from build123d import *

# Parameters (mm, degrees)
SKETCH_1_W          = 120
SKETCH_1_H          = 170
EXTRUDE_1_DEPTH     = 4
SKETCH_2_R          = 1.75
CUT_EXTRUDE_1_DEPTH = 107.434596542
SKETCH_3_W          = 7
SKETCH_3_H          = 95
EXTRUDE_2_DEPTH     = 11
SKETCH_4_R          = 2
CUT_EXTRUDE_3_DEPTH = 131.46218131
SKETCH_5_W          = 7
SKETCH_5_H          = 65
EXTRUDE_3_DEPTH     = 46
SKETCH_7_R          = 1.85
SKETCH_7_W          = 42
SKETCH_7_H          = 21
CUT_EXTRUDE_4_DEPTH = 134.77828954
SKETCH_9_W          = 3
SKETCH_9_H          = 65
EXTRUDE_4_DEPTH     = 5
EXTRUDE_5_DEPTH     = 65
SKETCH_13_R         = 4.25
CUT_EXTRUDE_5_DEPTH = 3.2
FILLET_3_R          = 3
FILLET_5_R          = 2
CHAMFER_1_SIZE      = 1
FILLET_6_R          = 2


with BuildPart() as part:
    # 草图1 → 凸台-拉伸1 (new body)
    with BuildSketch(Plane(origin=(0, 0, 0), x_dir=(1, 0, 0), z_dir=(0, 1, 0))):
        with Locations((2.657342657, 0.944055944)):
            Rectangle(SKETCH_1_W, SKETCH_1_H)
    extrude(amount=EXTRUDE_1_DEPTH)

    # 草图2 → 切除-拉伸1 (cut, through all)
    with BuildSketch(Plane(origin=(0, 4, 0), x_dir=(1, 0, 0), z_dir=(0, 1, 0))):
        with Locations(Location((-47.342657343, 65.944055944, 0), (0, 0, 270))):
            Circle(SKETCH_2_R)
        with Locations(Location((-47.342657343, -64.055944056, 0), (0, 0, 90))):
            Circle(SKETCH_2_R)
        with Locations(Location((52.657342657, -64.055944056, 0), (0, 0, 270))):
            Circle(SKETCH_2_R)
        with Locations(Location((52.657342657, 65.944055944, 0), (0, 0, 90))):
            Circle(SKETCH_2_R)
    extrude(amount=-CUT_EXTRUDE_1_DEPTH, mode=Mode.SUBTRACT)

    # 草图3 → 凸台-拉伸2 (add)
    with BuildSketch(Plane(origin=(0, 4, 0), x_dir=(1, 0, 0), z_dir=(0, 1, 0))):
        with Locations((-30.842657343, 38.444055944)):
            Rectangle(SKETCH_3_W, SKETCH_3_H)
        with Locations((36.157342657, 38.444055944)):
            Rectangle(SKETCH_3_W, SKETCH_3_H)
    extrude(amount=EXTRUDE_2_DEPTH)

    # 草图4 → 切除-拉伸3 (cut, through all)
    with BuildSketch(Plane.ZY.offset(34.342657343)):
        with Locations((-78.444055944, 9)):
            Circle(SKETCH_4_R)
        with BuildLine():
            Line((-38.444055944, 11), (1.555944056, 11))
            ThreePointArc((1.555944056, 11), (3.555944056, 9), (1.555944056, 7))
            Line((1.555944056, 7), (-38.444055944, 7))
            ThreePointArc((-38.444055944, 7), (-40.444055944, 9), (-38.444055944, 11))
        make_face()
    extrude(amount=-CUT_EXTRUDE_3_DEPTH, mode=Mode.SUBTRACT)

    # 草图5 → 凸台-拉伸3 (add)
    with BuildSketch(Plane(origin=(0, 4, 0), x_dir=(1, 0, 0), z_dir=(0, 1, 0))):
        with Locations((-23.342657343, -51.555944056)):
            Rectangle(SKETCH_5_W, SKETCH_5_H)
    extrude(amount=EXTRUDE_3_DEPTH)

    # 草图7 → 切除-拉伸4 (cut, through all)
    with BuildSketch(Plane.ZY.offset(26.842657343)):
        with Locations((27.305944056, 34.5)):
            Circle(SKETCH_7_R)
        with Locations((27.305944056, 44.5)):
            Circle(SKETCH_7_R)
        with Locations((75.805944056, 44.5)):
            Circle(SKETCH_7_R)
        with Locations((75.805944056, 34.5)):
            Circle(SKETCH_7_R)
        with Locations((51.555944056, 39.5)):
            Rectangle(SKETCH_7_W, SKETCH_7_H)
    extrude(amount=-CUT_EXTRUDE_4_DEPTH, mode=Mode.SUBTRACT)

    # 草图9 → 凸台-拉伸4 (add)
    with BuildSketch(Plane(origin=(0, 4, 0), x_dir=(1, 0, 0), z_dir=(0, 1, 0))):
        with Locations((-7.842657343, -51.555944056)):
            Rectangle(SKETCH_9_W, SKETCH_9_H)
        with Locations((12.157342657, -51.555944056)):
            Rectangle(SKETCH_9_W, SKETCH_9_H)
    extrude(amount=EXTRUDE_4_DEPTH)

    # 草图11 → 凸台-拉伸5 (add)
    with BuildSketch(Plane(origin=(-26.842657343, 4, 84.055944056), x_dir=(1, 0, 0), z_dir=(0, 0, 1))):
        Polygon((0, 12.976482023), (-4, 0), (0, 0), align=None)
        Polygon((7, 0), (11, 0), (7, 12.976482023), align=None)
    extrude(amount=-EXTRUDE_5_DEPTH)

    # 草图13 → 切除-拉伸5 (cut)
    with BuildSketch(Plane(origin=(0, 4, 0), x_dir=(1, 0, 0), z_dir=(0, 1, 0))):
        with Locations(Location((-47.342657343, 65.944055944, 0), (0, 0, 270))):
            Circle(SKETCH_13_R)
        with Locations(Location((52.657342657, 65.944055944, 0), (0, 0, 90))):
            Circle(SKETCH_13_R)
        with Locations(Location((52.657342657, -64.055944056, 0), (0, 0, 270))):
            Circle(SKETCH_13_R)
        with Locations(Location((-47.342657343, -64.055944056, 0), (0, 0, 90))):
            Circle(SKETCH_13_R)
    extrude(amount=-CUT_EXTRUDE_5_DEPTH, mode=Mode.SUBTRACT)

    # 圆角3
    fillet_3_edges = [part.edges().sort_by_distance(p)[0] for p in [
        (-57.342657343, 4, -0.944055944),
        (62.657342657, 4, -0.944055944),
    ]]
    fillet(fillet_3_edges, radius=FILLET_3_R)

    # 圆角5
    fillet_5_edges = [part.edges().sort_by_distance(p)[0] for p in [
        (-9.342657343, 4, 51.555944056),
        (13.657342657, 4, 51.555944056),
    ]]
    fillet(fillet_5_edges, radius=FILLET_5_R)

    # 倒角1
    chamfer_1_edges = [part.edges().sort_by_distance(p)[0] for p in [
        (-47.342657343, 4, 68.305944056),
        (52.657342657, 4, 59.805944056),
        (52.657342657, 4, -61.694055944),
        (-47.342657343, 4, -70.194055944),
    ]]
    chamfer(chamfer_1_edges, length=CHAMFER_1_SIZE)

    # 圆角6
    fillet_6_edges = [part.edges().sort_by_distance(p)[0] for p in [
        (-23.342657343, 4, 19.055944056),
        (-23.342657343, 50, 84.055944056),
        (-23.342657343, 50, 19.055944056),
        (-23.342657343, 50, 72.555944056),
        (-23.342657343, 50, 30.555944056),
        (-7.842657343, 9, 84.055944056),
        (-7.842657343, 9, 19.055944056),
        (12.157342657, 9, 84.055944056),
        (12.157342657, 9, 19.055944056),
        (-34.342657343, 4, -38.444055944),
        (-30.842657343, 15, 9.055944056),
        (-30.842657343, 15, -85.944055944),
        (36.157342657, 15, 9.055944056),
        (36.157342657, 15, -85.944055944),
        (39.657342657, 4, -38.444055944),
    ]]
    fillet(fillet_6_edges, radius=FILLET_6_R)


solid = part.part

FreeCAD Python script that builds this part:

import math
import FreeCAD as App
import Part
import Sketcher

V = App.Vector
Q = App.Units.Quantity


def edges_at(feature, points):
    """Names of the edges that pass closest to the given points."""
    edges = feature.Shape.Edges
    near = lambda p: min(range(len(edges)), key=lambda i: edges[i].distToShape(Part.Vertex(*p))[0])
    return sorted({f"Edge{near(p) + 1}" for p in points})


def add_polygon(sketch, points):
    """Adds a closed chain of lines whose ends are joined by coincident constraints."""
    first, n = sketch.GeometryCount, len(points)
    for a, b in zip(points, points[1:] + points[:1]):
        sketch.addGeometry(Part.LineSegment(App.Vector(*a, 0), App.Vector(*b, 0)), False)
    for i in range(n):
        sketch.addConstraint(Sketcher.Constraint("Coincident", first + i, 2, first + (i + 1) % n, 1))

doc = App.newDocument("Part")
body = doc.addObject("PartDesign::Body", "Body")

sketch1 = body.newObject("Sketcher::SketchObject", "Sketch")
sketch1.AttachmentSupport = (doc.getObject("XZ_Plane"), [""])
sketch1.MapMode = "FlatFace"
add_polygon(sketch1, [(-57, -86), (-57, 84), (63, 84), (63, -86)])
sketch1.addConstraint(Sketcher.Constraint("Vertical", 0))
sketch1.addConstraint(Sketcher.Constraint("Horizontal", 1))
sketch1.addConstraint(Sketcher.Constraint("Vertical", 2))
sketch1.addConstraint(Sketcher.Constraint("Horizontal", 3))
sketch1.addConstraint(Sketcher.Constraint("DistanceX", 1, 1, 1, 2, Q("120 mm")))
sketch1.addConstraint(Sketcher.Constraint("DistanceY", 0, 1, 0, 2, Q("170 mm")))
sketch1.addConstraint(Sketcher.Constraint("DistanceX", 0, 2, -1, 1, Q("57.342657 mm")))
sketch1.addConstraint(Sketcher.Constraint("DistanceY", -1, 1, 0, 2, Q("84.055944 mm")))
pad1 = body.newObject("PartDesign::Pad", "Pad")
pad1.Profile = sketch1
pad1.Length = 4
pad1.Reversed = True

sketch2 = body.newObject("Sketcher::SketchObject", "Sketch001")
sketch2.AttachmentSupport = (doc.getObject("XZ_Plane"), [""])
sketch2.MapMode = "FlatFace"
sketch2.AttachmentOffset = App.Placement(V(0, 0, -4), App.Rotation())
sketch2.addGeometry(Part.Circle(V(-47.3, -65.9, 0), V(0, 0, 1), 1.8), False)
sketch2.addGeometry(Part.Circle(V(-47.3, 64.1, 0), V(0, 0, 1), 1.8), False)
sketch2.addGeometry(Part.Circle(V(52.7, 64.1, 0), V(0, 0, 1), 1.8), False)
sketch2.addGeometry(Part.Circle(V(52.7, -65.9, 0), V(0, 0, 1), 1.8), False)
sketch2.addConstraint(Sketcher.Constraint("Equal", 0, 1))
sketch2.addConstraint(Sketcher.Constraint("Equal", 1, 2))
sketch2.addConstraint(Sketcher.Constraint("Equal", 2, 3))
sketch2.addConstraint(Sketcher.Constraint("Horizontal", 1, 3, 2, 3))
sketch2.addConstraint(Sketcher.Constraint("Horizontal", 0, 3, 3, 3))
sketch2.addConstraint(Sketcher.Constraint("Vertical", 0, 3, 1, 3))
sketch2.addConstraint(Sketcher.Constraint("Vertical", 2, 3, 3, 3))
sketch2.addConstraint(Sketcher.Constraint("Diameter", 0, Q("3.5 mm")))
sketch2.addConstraint(Sketcher.Constraint("DistanceY", 0, 3, 1, 3, Q("130 mm")))
sketch2.addConstraint(Sketcher.Constraint("DistanceX", 1, 3, 2, 3, Q("100 mm")))
sketch2.addConstraint(Sketcher.Constraint("DistanceX", 0, 3, -1, 1, Q("47.342657 mm")))
sketch2.addConstraint(Sketcher.Constraint("DistanceY", 0, 3, -1, 1, Q("65.944056 mm")))
pocket1 = body.newObject("PartDesign::Pocket", "Pocket")
pocket1.Profile = sketch2
pocket1.Type = "ThroughAll"
pocket1.Reversed = True

sketch3 = body.newObject("Sketcher::SketchObject", "Sketch002")
sketch3.AttachmentSupport = (doc.getObject("XZ_Plane"), [""])
sketch3.MapMode = "FlatFace"
sketch3.AttachmentOffset = App.Placement(V(0, 0, -4), App.Rotation())
add_polygon(sketch3, [(-34, -86), (-34, 9), (-27, 9), (-27, -86)])
add_polygon(sketch3, [(33, -86), (33, 9), (40, 9), (40, -86)])
sketch3.addConstraint(Sketcher.Constraint("Vertical", 0))
sketch3.addConstraint(Sketcher.Constraint("Horizontal", 1))
sketch3.addConstraint(Sketcher.Constraint("Vertical", 2))
sketch3.addConstraint(Sketcher.Constraint("Horizontal", 3))
sketch3.addConstraint(Sketcher.Constraint("Vertical", 4))
sketch3.addConstraint(Sketcher.Constraint("Horizontal", 5))
sketch3.addConstraint(Sketcher.Constraint("Vertical", 6))
sketch3.addConstraint(Sketcher.Constraint("Horizontal", 7))
sketch3.addConstraint(Sketcher.Constraint("Horizontal", 1, 2, 4, 2))
sketch3.addConstraint(Sketcher.Constraint("Horizontal", 3, 2, 6, 2))
sketch3.addConstraint(Sketcher.Constraint("Equal", 3, 5))
sketch3.addConstraint(Sketcher.Constraint("DistanceX", 1, 1, 1, 2, Q("7 mm")))
sketch3.addConstraint(Sketcher.Constraint("DistanceY", 0, 1, 0, 2, Q("95 mm")))
sketch3.addConstraint(Sketcher.Constraint("DistanceX", 1, 2, 4, 2, Q("60 mm")))
sketch3.addConstraint(Sketcher.Constraint("DistanceX", 0, 2, -1, 1, Q("34.342657 mm")))
sketch3.addConstraint(Sketcher.Constraint("DistanceY", -1, 1, 0, 2, Q("9.055944 mm")))
pad2 = body.newObject("PartDesign::Pad", "Pad001")
pad2.Profile = sketch3
pad2.Length = 11
pad2.Reversed = True

sketch4 = body.newObject("Sketcher::SketchObject", "Sketch003")
sketch4.AttachmentSupport = (doc.getObject("YZ_Plane"), [""])
sketch4.MapMode = "FlatFace"
sketch4.AttachmentOffset = App.Placement(V(0, 0, -34.342657), App.Rotation())
sketch4.addGeometry(Part.Circle(V(9, -78.4, 0), V(0, 0, 1), 2), False)
sketch4.addGeometry(Part.LineSegment(V(11, 1.6, 0), V(11, -38.4, 0)), False)
sketch4.addGeometry(Part.ArcOfCircle(Part.Circle(V(9, -38.4, 0), V(0, 0, 1), 2), math.radians(180), math.radians(360)), False)
sketch4.addGeometry(Part.LineSegment(V(7, -38.4, 0), V(7, 1.6, 0)), False)
sketch4.addGeometry(Part.ArcOfCircle(Part.Circle(V(9, 1.6, 0), V(0, 0, 1), 2), math.radians(0), math.radians(180)), False)
sketch4.addConstraint(Sketcher.Constraint("Tangent", 1, 2, 2, 2))
sketch4.addConstraint(Sketcher.Constraint("Tangent", 2, 1, 3, 1))
sketch4.addConstraint(Sketcher.Constraint("Tangent", 3, 2, 4, 2))
sketch4.addConstraint(Sketcher.Constraint("Tangent", 4, 1, 1, 1))
sketch4.addConstraint(Sketcher.Constraint("Vertical", 1))
sketch4.addConstraint(Sketcher.Constraint("Vertical", 3))
sketch4.addConstraint(Sketcher.Constraint("Equal", 0, 2))
sketch4.addConstraint(Sketcher.Constraint("Vertical", 0, 3, 2, 3))
sketch4.addConstraint(Sketcher.Constraint("Diameter", 0, Q("4 mm")))
sketch4.addConstraint(Sketcher.Constraint("DistanceY", 1, 2, 1, 1, Q("40 mm")))
sketch4.addConstraint(Sketcher.Constraint("DistanceX", -1, 1, 0, 3, Q("9 mm")))
sketch4.addConstraint(Sketcher.Constraint("DistanceY", 0, 3, 2, 3, Q("40 mm")))
sketch4.addConstraint(Sketcher.Constraint("DistanceY", 0, 3, -1, 1, Q("78.444056 mm")))
pocket2 = body.newObject("PartDesign::Pocket", "Pocket001")
pocket2.Profile = sketch4
pocket2.Type = "ThroughAll"
pocket2.Reversed = True

sketch5 = body.newObject("Sketcher::SketchObject", "Sketch004")
sketch5.AttachmentSupport = (doc.getObject("XZ_Plane"), [""])
sketch5.MapMode = "FlatFace"
sketch5.AttachmentOffset = App.Placement(V(0, 0, -4), App.Rotation())
add_polygon(sketch5, [(-27, 19), (-27, 84), (-20, 84), (-20, 19)])
sketch5.addConstraint(Sketcher.Constraint("Vertical", 0))
sketch5.addConstraint(Sketcher.Constraint("Horizontal", 1))
sketch5.addConstraint(Sketcher.Constraint("Vertical", 2))
sketch5.addConstraint(Sketcher.Constraint("Horizontal", 3))
sketch5.addConstraint(Sketcher.Constraint("DistanceX", 1, 1, 1, 2, Q("7 mm")))
sketch5.addConstraint(Sketcher.Constraint("DistanceY", 0, 1, 0, 2, Q("65 mm")))
sketch5.addConstraint(Sketcher.Constraint("DistanceX", 0, 2, -1, 1, Q("26.842657 mm")))
sketch5.addConstraint(Sketcher.Constraint("DistanceY", -1, 1, 0, 2, Q("84.055944 mm")))
pad3 = body.newObject("PartDesign::Pad", "Pad002")
pad3.Profile = sketch5
pad3.Length = 46
pad3.Reversed = True

sketch6 = body.newObject("Sketcher::SketchObject", "Sketch005")
sketch6.AttachmentSupport = (doc.getObject("YZ_Plane"), [""])
sketch6.MapMode = "FlatFace"
sketch6.AttachmentOffset = App.Placement(V(0, 0, -26.842657), App.Rotation())
sketch6.addGeometry(Part.Circle(V(34.5, 27.3, 0), V(0, 0, 1), 1.9), False)
sketch6.addGeometry(Part.Circle(V(44.5, 27.3, 0), V(0, 0, 1), 1.9), False)
sketch6.addGeometry(Part.Circle(V(44.5, 75.8, 0), V(0, 0, 1), 1.9), False)
sketch6.addGeometry(Part.Circle(V(34.5, 75.8, 0), V(0, 0, 1), 1.9), False)
add_polygon(sketch6, [(50, 30.6), (29, 30.6), (29, 72.6), (50, 72.6)])
sketch6.addConstraint(Sketcher.Constraint("Horizontal", 4))
sketch6.addConstraint(Sketcher.Constraint("Vertical", 5))
sketch6.addConstraint(Sketcher.Constraint("Horizontal", 6))
sketch6.addConstraint(Sketcher.Constraint("Vertical", 7))
sketch6.addConstraint(Sketcher.Constraint("Equal", 0, 1))
sketch6.addConstraint(Sketcher.Constraint("Equal", 1, 2))
sketch6.addConstraint(Sketcher.Constraint("Equal", 2, 3))
sketch6.addConstraint(Sketcher.Constraint("Horizontal", 0, 3, 1, 3))
sketch6.addConstraint(Sketcher.Constraint("Horizontal", 2, 3, 3, 3))
sketch6.addConstraint(Sketcher.Constraint("Vertical", 1, 3, 2, 3))
sketch6.addConstraint(Sketcher.Constraint("Vertical", 0, 3, 3, 3))
sketch6.addConstraint(Sketcher.Constraint("Diameter", 0, Q("3.7 mm")))
sketch6.addConstraint(Sketcher.Constraint("DistanceX", 4, 2, 4, 1, Q("21 mm")))
sketch6.addConstraint(Sketcher.Constraint("DistanceY", 5, 1, 5, 2, Q("42 mm")))
sketch6.addConstraint(Sketcher.Constraint("DistanceX", -1, 1, 4, 2, Q("29 mm")))
sketch6.addConstraint(Sketcher.Constraint("DistanceX", 0, 3, 1, 3, Q("10 mm")))
sketch6.addConstraint(Sketcher.Constraint("DistanceX", -1, 1, 0, 3, Q("34.5 mm")))
sketch6.addConstraint(Sketcher.Constraint("DistanceY", 1, 3, 2, 3, Q("48.5 mm")))
sketch6.addConstraint(Sketcher.Constraint("DistanceY", 0, 3, 4, 2, Q("3.25 mm")))
sketch6.addConstraint(Sketcher.Constraint("DistanceY", -1, 1, 0, 3, Q("27.305944 mm")))
pocket3 = body.newObject("PartDesign::Pocket", "Pocket002")
pocket3.Profile = sketch6
pocket3.Type = "ThroughAll"
pocket3.Reversed = True

sketch7 = body.newObject("Sketcher::SketchObject", "Sketch006")
sketch7.AttachmentSupport = (doc.getObject("XZ_Plane"), [""])
sketch7.MapMode = "FlatFace"
sketch7.AttachmentOffset = App.Placement(V(0, 0, -4), App.Rotation())
add_polygon(sketch7, [(-9.3, 19.1), (-9.3, 84.1), (-6.3, 84.1), (-6.3, 19.1)])
add_polygon(sketch7, [(10.7, 19.1), (10.7, 84.1), (13.7, 84.1), (13.7, 19.1)])
sketch7.addConstraint(Sketcher.Constraint("Vertical", 0))
sketch7.addConstraint(Sketcher.Constraint("Horizontal", 1))
sketch7.addConstraint(Sketcher.Constraint("Vertical", 2))
sketch7.addConstraint(Sketcher.Constraint("Horizontal", 3))
sketch7.addConstraint(Sketcher.Constraint("Vertical", 4))
sketch7.addConstraint(Sketcher.Constraint("Horizontal", 5))
sketch7.addConstraint(Sketcher.Constraint("Vertical", 6))
sketch7.addConstraint(Sketcher.Constraint("Horizontal", 7))
sketch7.addConstraint(Sketcher.Constraint("Horizontal", 1, 2, 4, 2))
sketch7.addConstraint(Sketcher.Constraint("Horizontal", 3, 2, 6, 2))
sketch7.addConstraint(Sketcher.Constraint("Equal", 3, 5))
sketch7.addConstraint(Sketcher.Constraint("DistanceX", 1, 1, 1, 2, Q("3 mm")))
sketch7.addConstraint(Sketcher.Constraint("DistanceY", 0, 1, 0, 2, Q("65 mm")))
sketch7.addConstraint(Sketcher.Constraint("DistanceX", 1, 2, 4, 2, Q("17 mm")))
sketch7.addConstraint(Sketcher.Constraint("DistanceX", 0, 2, -1, 1, Q("9.342657 mm")))
sketch7.addConstraint(Sketcher.Constraint("DistanceY", -1, 1, 0, 2, Q("84.055944 mm")))
pad4 = body.newObject("PartDesign::Pad", "Pad003")
pad4.Profile = sketch7
pad4.Length = 5
pad4.Reversed = True

sketch8 = body.newObject("Sketcher::SketchObject", "Sketch007")
sketch8.AttachmentSupport = (doc.getObject("XY_Plane"), [""])
sketch8.MapMode = "FlatFace"
sketch8.AttachmentOffset = App.Placement(V(0, 0, 84.055944), App.Rotation())
add_polygon(sketch8, [(-26.8, 17), (-30.8, 4), (-26.8, 4)])
add_polygon(sketch8, [(-19.8, 4), (-15.8, 4), (-19.8, 17)])
sketch8.addConstraint(Sketcher.Constraint("Horizontal", 1))
sketch8.addConstraint(Sketcher.Constraint("Vertical", 2))
sketch8.addConstraint(Sketcher.Constraint("Horizontal", 3))
sketch8.addConstraint(Sketcher.Constraint("Vertical", 5))
sketch8.addConstraint(Sketcher.Constraint("Horizontal", 1, 2, 3, 2))
sketch8.addConstraint(Sketcher.Constraint("Horizontal", 2, 2, 4, 2))
sketch8.addConstraint(Sketcher.Constraint("Equal", 1, 3))
sketch8.addConstraint(Sketcher.Constraint("DistanceX", 1, 1, 1, 2, Q("4 mm")))
sketch8.addConstraint(Sketcher.Constraint("DistanceY", -1, 1, 0, 2, Q("4 mm")))
sketch8.addConstraint(Sketcher.Constraint("DistanceX", 1, 2, 3, 2, Q("11 mm")))
sketch8.addConstraint(Sketcher.Constraint("DistanceY", 2, 1, 2, 2, Q("12.976482 mm")))
sketch8.addConstraint(Sketcher.Constraint("DistanceX", 0, 2, -1, 1, Q("30.842657 mm")))
pad5 = body.newObject("PartDesign::Pad", "Pad004")
pad5.Profile = sketch8
pad5.Length = 65
pad5.Reversed = True

sketch9 = body.newObject("Sketcher::SketchObject", "Sketch008")
sketch9.AttachmentSupport = (doc.getObject("XZ_Plane"), [""])
sketch9.MapMode = "FlatFace"
sketch9.AttachmentOffset = App.Placement(V(0, 0, -4), App.Rotation())
sketch9.addGeometry(Part.Circle(V(-47.3, -65.9, 0), V(0, 0, 1), 4.2), False)
sketch9.addGeometry(Part.Circle(V(52.7, -65.9, 0), V(0, 0, 1), 4.2), False)
sketch9.addGeometry(Part.Circle(V(52.7, 64.1, 0), V(0, 0, 1), 4.2), False)
sketch9.addGeometry(Part.Circle(V(-47.3, 64.1, 0), V(0, 0, 1), 4.2), False)
sketch9.addConstraint(Sketcher.Constraint("Equal", 0, 1))
sketch9.addConstraint(Sketcher.Constraint("Equal", 1, 2))
sketch9.addConstraint(Sketcher.Constraint("Equal", 2, 3))
sketch9.addConstraint(Sketcher.Constraint("Horizontal", 0, 3, 1, 3))
sketch9.addConstraint(Sketcher.Constraint("Horizontal", 2, 3, 3, 3))
sketch9.addConstraint(Sketcher.Constraint("Vertical", 1, 3, 2, 3))
sketch9.addConstraint(Sketcher.Constraint("Vertical", 0, 3, 3, 3))
sketch9.addConstraint(Sketcher.Constraint("Diameter", 0, Q("8.5 mm")))
sketch9.addConstraint(Sketcher.Constraint("DistanceX", 0, 3, 1, 3, Q("100 mm")))
sketch9.addConstraint(Sketcher.Constraint("DistanceY", 1, 3, 2, 3, Q("130 mm")))
sketch9.addConstraint(Sketcher.Constraint("DistanceX", 0, 3, -1, 1, Q("47.342657 mm")))
sketch9.addConstraint(Sketcher.Constraint("DistanceY", 0, 3, -1, 1, Q("65.944056 mm")))
pocket4 = body.newObject("PartDesign::Pocket", "Pocket003")
pocket4.Profile = sketch9
pocket4.Length = 3.2
pocket4.Reversed = True
doc.recompute()

fillet = body.newObject("PartDesign::Fillet", "Fillet")
fillet.Base = (pocket4, edges_at(pocket4, [(-57.343, 4, -0.944), (62.657, 4, -0.944)]))
fillet.Radius = 3
doc.recompute()

fillet2 = body.newObject("PartDesign::Fillet", "Fillet001")
fillet2.Base = (fillet, edges_at(fillet, [(-9.343, 4, 51.556), (13.657, 4, 51.556)]))
fillet2.Radius = 2
doc.recompute()

chamfer = body.newObject("PartDesign::Chamfer", "Chamfer")
chamfer.Base = (fillet2, edges_at(fillet2, [
    (-47.343, 4, 68.306),
    (52.657, 4, 59.806),
    (52.657, 4, -61.694),
    (-47.343, 4, -70.194),
]))
chamfer.Size = 1
doc.recompute()

fillet3 = body.newObject("PartDesign::Fillet", "Fillet002")
fillet3.Base = (chamfer, edges_at(chamfer, [
    (-23.343, 4, 19.056),
    (-23.343, 50, 84.056),
    (-23.343, 50, 19.056),
    (-23.343, 50, 72.556),
    (-23.343, 50, 30.556),
    (-7.843, 9, 84.056),
    (-7.843, 9, 19.056),
    (12.157, 9, 84.056),
    (12.157, 9, 19.056),
    (-34.343, 4, -38.444),
    (-30.843, 15, 9.056),
    (-30.843, 15, -85.944),
    (36.157, 15, 9.056),
    (36.157, 15, -85.944),
    (39.657, 4, -38.444),
]))
fillet3.Radius = 2

doc.recompute()
